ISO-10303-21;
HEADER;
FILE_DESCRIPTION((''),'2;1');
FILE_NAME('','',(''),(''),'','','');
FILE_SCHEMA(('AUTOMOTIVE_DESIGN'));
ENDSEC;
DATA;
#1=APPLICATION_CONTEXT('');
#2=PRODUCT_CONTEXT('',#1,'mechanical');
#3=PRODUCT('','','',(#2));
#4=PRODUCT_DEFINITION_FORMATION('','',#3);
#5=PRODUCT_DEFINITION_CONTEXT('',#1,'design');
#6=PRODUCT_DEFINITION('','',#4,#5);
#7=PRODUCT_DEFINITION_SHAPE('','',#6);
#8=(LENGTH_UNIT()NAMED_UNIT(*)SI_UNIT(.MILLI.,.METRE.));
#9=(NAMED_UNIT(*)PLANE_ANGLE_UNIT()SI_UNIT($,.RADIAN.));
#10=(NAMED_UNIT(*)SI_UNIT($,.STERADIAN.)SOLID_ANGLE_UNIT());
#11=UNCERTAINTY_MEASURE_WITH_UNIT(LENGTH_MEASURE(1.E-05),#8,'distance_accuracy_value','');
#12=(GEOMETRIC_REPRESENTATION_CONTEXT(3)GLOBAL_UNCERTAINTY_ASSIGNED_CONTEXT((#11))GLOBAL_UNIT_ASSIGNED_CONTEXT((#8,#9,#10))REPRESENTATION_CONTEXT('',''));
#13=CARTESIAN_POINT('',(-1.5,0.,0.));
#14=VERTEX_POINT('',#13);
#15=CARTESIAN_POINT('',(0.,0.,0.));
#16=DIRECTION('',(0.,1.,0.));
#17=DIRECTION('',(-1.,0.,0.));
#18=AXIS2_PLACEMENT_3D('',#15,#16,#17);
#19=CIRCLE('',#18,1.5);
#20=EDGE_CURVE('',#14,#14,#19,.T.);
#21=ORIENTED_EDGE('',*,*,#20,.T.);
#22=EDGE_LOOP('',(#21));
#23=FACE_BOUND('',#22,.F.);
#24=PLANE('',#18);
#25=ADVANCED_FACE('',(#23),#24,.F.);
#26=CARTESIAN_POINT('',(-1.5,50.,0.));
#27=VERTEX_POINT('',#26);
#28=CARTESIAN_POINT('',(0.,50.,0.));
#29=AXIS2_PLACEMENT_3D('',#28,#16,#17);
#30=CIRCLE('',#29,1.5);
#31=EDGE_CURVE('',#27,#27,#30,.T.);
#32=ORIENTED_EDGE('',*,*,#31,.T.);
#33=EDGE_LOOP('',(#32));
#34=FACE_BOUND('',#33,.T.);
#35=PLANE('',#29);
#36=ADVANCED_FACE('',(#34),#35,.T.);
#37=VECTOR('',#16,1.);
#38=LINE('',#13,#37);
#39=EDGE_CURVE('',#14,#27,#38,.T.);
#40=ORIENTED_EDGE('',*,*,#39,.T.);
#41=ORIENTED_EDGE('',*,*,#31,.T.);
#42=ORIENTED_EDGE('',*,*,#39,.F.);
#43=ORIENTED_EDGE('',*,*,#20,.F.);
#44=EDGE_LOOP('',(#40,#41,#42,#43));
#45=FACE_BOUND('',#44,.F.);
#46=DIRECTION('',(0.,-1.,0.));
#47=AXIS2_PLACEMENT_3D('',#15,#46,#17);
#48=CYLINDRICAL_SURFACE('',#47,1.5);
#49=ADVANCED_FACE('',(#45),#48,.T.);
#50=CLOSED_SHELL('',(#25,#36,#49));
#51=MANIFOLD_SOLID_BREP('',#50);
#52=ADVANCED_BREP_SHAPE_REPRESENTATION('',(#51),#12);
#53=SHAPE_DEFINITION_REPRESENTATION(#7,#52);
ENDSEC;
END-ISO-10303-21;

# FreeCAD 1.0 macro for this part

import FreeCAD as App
import Part
import Sketcher

V = App.Vector

doc = App.newDocument("Part")
params = doc.addObject("Spreadsheet::Sheet", "Params")
for row, (alias, value) in enumerate([
    ("sketch1_diameter", "3 mm"),
    ("pad1_length", "50 mm"),
], start=1):
    params.set(f"A{row}", alias)
    params.set(f"B{row}", "=" + value)
    params.setAlias(f"B{row}", alias)

body = doc.addObject("PartDesign::Body", "Body")

sketch1 = body.newObject("Sketcher::SketchObject", "Sketch")
sketch1.AttachmentSupport = (doc.getObject("XZ_Plane"), [""])
sketch1.MapMode = "FlatFace"
sketch1.addGeometry(Part.Circle(V(0, 0, 0), V(0, 0, 1), 1.5), False)
sketch1.addConstraint(Sketcher.Constraint("Coincident", 0, 3, -1, 1))
sketch1.addConstraint(Sketcher.Constraint("Diameter", 0, 3.0))
sketch1.setExpression("Constraints[1]", "Params.sketch1_diameter")
pad1 = body.newObject("PartDesign::Pad", "Pad")
pad1.Profile = sketch1
pad1.setExpression("Length", "Params.pad1_length")
pad1.Reversed = True

doc.recompute()
